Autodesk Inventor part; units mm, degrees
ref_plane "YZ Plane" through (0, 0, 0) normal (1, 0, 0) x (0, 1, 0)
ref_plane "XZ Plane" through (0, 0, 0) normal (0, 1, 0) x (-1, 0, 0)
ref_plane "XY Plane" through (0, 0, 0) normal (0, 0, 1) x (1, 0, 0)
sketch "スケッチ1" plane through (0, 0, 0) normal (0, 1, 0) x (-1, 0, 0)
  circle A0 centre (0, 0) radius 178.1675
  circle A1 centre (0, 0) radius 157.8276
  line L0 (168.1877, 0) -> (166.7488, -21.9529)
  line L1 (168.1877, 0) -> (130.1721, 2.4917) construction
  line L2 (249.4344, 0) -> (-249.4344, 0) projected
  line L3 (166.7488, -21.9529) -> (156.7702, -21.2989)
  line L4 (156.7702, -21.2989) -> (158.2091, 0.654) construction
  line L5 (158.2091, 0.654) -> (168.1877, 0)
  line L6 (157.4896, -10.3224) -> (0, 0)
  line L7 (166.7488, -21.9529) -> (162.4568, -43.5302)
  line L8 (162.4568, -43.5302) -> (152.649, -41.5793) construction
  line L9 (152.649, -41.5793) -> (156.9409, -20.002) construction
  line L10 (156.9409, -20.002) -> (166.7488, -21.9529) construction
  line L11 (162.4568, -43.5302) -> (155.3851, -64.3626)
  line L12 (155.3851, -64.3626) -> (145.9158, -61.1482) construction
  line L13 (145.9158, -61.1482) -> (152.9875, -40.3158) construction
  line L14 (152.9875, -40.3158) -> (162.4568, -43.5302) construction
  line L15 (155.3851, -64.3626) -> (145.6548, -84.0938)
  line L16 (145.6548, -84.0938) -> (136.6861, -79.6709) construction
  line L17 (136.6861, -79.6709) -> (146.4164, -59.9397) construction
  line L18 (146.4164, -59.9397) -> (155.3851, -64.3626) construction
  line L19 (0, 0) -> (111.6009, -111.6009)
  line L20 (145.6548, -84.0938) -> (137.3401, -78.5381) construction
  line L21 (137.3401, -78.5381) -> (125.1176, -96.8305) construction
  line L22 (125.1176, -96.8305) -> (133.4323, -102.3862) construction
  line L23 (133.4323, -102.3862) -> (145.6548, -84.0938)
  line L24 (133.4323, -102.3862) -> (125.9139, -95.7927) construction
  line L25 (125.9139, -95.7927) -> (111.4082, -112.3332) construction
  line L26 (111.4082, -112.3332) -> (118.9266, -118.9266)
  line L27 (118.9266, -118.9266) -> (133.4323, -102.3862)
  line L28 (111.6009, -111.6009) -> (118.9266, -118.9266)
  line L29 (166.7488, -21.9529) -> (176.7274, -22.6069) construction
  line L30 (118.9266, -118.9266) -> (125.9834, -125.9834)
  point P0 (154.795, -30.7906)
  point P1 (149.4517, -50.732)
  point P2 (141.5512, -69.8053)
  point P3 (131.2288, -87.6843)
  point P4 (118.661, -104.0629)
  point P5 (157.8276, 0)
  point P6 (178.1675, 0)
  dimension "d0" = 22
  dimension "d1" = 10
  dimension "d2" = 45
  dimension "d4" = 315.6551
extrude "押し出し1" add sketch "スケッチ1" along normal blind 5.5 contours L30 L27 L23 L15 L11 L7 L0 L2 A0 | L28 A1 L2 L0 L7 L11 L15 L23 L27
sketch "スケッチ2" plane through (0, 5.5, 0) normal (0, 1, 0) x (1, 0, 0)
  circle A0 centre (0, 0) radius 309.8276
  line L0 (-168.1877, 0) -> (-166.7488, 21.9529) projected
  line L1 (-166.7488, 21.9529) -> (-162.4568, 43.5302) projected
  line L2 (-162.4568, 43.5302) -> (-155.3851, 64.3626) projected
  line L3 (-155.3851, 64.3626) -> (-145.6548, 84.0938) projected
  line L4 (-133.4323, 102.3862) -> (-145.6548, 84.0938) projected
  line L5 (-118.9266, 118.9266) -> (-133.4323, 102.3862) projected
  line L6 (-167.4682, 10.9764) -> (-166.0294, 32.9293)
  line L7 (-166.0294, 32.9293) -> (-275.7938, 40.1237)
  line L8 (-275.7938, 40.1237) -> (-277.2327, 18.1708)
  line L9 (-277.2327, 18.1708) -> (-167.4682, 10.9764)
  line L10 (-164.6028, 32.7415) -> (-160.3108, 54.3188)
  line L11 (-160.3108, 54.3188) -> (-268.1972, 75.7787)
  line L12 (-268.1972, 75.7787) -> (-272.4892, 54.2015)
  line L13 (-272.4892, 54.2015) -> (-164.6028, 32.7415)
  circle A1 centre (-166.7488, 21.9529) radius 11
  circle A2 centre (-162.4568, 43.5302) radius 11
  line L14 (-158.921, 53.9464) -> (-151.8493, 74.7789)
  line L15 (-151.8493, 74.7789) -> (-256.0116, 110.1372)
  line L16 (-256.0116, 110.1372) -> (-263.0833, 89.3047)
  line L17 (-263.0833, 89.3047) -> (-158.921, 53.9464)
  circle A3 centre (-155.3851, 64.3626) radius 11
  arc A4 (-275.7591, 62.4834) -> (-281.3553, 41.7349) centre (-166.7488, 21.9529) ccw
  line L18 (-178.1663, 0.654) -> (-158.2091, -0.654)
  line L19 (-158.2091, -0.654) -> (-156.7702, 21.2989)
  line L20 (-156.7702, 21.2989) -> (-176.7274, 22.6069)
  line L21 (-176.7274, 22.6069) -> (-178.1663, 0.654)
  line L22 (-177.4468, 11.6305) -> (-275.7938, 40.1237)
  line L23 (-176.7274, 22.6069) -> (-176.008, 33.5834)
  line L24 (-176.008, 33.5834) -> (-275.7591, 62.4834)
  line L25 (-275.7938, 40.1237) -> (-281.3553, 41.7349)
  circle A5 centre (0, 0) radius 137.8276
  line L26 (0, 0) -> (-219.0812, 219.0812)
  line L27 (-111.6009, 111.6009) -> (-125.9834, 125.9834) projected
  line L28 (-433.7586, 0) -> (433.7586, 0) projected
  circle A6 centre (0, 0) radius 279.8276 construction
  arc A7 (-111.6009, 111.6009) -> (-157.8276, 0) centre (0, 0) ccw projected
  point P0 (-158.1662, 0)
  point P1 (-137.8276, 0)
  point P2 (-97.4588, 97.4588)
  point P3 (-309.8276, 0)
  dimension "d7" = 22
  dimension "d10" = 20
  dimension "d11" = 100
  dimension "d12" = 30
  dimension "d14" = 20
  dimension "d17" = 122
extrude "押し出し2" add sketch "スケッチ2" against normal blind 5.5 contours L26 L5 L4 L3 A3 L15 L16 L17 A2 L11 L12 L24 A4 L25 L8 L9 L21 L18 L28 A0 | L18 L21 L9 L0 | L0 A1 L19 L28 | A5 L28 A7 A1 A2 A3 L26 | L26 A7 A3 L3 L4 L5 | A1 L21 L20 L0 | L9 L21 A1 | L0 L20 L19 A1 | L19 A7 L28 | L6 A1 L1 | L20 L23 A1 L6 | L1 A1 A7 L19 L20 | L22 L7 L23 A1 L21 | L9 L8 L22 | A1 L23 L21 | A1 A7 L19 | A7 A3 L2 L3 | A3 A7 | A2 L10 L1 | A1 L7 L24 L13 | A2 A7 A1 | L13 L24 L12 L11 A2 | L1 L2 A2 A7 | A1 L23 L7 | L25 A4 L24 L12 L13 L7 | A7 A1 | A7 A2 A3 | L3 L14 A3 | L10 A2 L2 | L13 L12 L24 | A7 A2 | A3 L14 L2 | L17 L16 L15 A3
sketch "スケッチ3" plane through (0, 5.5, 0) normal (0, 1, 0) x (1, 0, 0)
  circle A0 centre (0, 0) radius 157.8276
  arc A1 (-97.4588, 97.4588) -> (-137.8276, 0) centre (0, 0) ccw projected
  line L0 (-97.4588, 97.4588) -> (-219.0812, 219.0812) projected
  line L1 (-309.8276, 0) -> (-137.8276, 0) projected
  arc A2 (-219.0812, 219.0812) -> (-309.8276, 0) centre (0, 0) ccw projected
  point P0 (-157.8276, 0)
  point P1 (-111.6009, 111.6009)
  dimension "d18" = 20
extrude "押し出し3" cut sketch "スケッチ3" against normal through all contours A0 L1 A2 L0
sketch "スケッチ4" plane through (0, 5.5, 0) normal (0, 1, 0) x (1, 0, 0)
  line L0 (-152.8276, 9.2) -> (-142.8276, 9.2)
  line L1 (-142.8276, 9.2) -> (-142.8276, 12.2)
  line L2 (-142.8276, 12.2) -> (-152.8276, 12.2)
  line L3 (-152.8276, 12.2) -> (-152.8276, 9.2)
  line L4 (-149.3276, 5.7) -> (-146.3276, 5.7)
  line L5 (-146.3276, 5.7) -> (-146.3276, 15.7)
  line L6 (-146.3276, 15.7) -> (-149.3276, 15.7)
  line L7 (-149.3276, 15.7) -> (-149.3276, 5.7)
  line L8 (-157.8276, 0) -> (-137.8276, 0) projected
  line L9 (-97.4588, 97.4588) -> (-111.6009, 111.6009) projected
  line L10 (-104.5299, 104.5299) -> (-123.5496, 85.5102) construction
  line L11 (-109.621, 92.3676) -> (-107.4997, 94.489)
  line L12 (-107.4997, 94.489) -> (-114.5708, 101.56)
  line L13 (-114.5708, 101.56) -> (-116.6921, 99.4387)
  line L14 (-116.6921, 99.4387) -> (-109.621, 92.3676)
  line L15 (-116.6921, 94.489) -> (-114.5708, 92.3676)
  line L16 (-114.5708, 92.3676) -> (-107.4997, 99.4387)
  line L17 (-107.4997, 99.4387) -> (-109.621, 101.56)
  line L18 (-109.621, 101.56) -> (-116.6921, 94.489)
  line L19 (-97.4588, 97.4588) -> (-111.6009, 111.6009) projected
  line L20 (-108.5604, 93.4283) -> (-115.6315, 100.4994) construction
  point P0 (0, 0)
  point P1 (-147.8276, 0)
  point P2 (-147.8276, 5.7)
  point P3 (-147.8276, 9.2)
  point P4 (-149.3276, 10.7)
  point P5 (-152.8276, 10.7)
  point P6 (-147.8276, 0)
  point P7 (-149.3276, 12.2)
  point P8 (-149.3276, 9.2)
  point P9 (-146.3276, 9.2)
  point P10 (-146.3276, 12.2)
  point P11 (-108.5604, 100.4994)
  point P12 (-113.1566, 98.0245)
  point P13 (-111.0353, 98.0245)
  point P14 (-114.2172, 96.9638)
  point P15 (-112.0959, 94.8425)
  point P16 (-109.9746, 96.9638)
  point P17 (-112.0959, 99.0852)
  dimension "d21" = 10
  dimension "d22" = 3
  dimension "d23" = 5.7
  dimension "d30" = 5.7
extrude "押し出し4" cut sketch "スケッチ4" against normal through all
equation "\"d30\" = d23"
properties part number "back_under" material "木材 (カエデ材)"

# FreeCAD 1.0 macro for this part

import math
import FreeCAD as App
import Part
import Sketcher
Q = App.Units.Quantity


def add_polygon(sketch, points):
    """Adds a closed chain of lines whose ends are joined by coincident constraints."""
    first, n = sketch.GeometryCount, len(points)
    for a, b in zip(points, points[1:] + points[:1]):
        sketch.addGeometry(Part.LineSegment(App.Vector(*a, 0), App.Vector(*b, 0)), False)
    for i in range(n):
        sketch.addConstraint(Sketcher.Constraint("Coincident", first + i, 2, first + (i + 1) % n, 1))

doc = App.newDocument("Part")
body = doc.addObject("PartDesign::Body", "Body")

# Sketch on XZ plane
sketch1 = body.newObject("Sketcher::SketchObject", "Sketch")
sketch1.AttachmentSupport = (doc.getObject("XZ_Plane"), [""])
sketch1.MapMode = "FlatFace"
sketch1.addGeometry([
    Part.ArcOfCircle(Part.Circle(App.Vector(0, 0, 0), App.Vector(0, 0, 1), 178.1675), math.radians(180), math.radians(225)),
    Part.LineSegment(App.Vector(-178.1675, 0, 0), App.Vector(-157.8276, 0, 0)),
    Part.ArcOfCircle(Part.Circle(App.Vector(0, 0, 0), App.Vector(0, 0, 1), 157.8276), math.radians(180), math.radians(225)),
    Part.LineSegment(App.Vector(-111.6009, -111.6009, 0), App.Vector(-125.9834, -125.9834, 0)),
], False)
sketch1.addConstraint([
    Sketcher.Constraint("Coincident", 0, 1, 1, 1),
    Sketcher.Constraint("Coincident", 1, 2, 2, 1),
    Sketcher.Constraint("Coincident", 2, 2, 3, 1),
    Sketcher.Constraint("Coincident", 3, 2, 0, 2),
    Sketcher.Constraint("Horizontal", 1),
    Sketcher.Constraint("Coincident", 0, 3, -1, 1),
    Sketcher.Constraint("Coincident", 2, 3, -1, 1),
    Sketcher.Constraint("PointOnObject", 0, 1, -1),
    Sketcher.Constraint("Radius", 2, Q("157.8276 mm")),
    Sketcher.Constraint("Angle", 3, Q("-135 deg")),
    Sketcher.Constraint("DistanceX", 1, 1, 1, 2, Q("20.34 mm")),
    Sketcher.Constraint("DistanceX", 2, 2, -1, 1, Q("111.601 mm")),
])
pad1 = body.newObject("PartDesign::Pad", "Pad")
pad1.Profile = sketch1
pad1.Length = 5.5
pad1.Reversed = True

# Sketch on XZ plane
sketch2 = body.newObject("Sketcher::SketchObject", "Sketch001")
sketch2.AttachmentSupport = (doc.getObject("XZ_Plane"), [""])
sketch2.MapMode = "FlatFace"
sketch2.AttachmentOffset = App.Placement(App.Vector(0, 0, -5.5), App.Rotation())
sketch2.addGeometry([
    Part.ArcOfCircle(Part.Circle(App.Vector(0, 0, 0), App.Vector(0, 0, 1), 309.8276), math.radians(180), math.radians(225)),
    Part.LineSegment(App.Vector(-309.8276, 0, 0), App.Vector(-137.8276, 0, 0)),
    Part.ArcOfCircle(Part.Circle(App.Vector(0, 0, 0), App.Vector(0, 0, 1), 137.8276), math.radians(180), math.radians(225)),
    Part.LineSegment(App.Vector(-97.458831, -97.458831, 0), App.Vector(-219.0812, -219.0812, 0)),
], False)
sketch2.addConstraint([
    Sketcher.Constraint("Coincident", 0, 1, 1, 1),
    Sketcher.Constraint("Coincident", 1, 2, 2, 1),
    Sketcher.Constraint("Coincident", 2, 2, 3, 1),
    Sketcher.Constraint("Coincident", 3, 2, 0, 2),
    Sketcher.Constraint("Horizontal", 1),
    Sketcher.Constraint("Coincident", 0, 3, -1, 1),
    Sketcher.Constraint("Coincident", 2, 3, -1, 1),
    Sketcher.Constraint("PointOnObject", 0, 1, -1),
    Sketcher.Constraint("DistanceX", 1, 1, 1, 2, Q("172 mm")),
    Sketcher.Constraint("Angle", 3, Q("-135 deg")),
    Sketcher.Constraint("Radius", 0, Q("309.8276 mm")),
    Sketcher.Constraint("DistanceX", 2, 2, -1, 1, Q("97.4588 mm")),
])
pad2 = body.newObject("PartDesign::Pad", "Pad001")
pad2.Profile = sketch2
pad2.Length = 5.5

# Sketch on XZ plane
sketch3 = body.newObject("Sketcher::SketchObject", "Sketch002")
sketch3.AttachmentSupport = (doc.getObject("XZ_Plane"), [""])
sketch3.MapMode = "FlatFace"
sketch3.AttachmentOffset = App.Placement(App.Vector(0, 0, -5.5), App.Rotation())
sketch3.addGeometry([
    Part.ArcOfCircle(Part.Circle(App.Vector(0, 0, 0), App.Vector(0, 0, 1), 157.8276), math.radians(180), math.radians(225)),
    Part.LineSegment(App.Vector(-111.600966, -111.600966, 0), App.Vector(-219.0812, -219.0812, 0)),
    Part.ArcOfCircle(Part.Circle(App.Vector(0, 0, 0), App.Vector(0, 0, 1), 309.827604), math.radians(180), math.radians(225)),
    Part.LineSegment(App.Vector(-309.8276, 0, 0), App.Vector(-157.8276, 0, 0)),
], False)
sketch3.addConstraint([
    Sketcher.Constraint("Coincident", 0, 2, 1, 1),
    Sketcher.Constraint("Coincident", 1, 2, 2, 2),
    Sketcher.Constraint("Coincident", 2, 1, 3, 1),
    Sketcher.Constraint("Coincident", 3, 2, 0, 1),
    Sketcher.Constraint("Horizontal", 3),
    Sketcher.Constraint("Coincident", 0, 3, -1, 1),
    Sketcher.Constraint("Coincident", 2, 3, -1, 1),
    Sketcher.Constraint("PointOnObject", 2, 1, -1),
    Sketcher.Constraint("DistanceX", 3, 1, 3, 2, Q("152 mm")),
    Sketcher.Constraint("Angle", 1, Q("-135 deg")),
    Sketcher.Constraint("Radius", 0, Q("157.8276 mm")),
    Sketcher.Constraint("DistanceX", 0, 2, -1, 1, Q("111.601 mm")),
])
pocket1 = body.newObject("PartDesign::Pocket", "Pocket")
pocket1.Profile = sketch3
pocket1.Type = "ThroughAll"
pocket1.Reversed = True

# Sketch on XZ plane
sketch4 = body.newObject("Sketcher::SketchObject", "Sketch003")
sketch4.AttachmentSupport = (doc.getObject("XZ_Plane"), [""])
sketch4.MapMode = "FlatFace"
sketch4.AttachmentOffset = App.Placement(App.Vector(0, 0, -5.5), App.Rotation())
add_polygon(sketch4, [(-152.8276, -12.2), (-152.8276, -9.2), (-149.3276, -9.2), (-149.3276, -5.7), (-146.3276, -5.7), (-146.3276, -9.2), (-142.8276, -9.2), (-142.8276, -12.2), (-146.3276, -12.2), (-146.3276, -15.7), (-149.3276, -15.7), (-149.3276, -12.2)])  # lines 0-11
add_polygon(sketch4, [(-112.0959, -94.8425), (-109.621, -92.3676), (-107.4997, -94.489), (-109.974568, -96.963832), (-107.4997, -99.4387), (-109.621, -101.56), (-112.0959, -99.085135), (-114.5708, -101.56), (-116.6921, -99.4387), (-114.217232, -96.963832), (-116.6921, -94.489), (-114.5708, -92.3676)])  # lines 12-23
sketch4.addConstraint([
    Sketcher.Constraint("Vertical", 0),
    Sketcher.Constraint("Horizontal", 1),
    Sketcher.Constraint("Vertical", 2),
    Sketcher.Constraint("Horizontal", 3),
    Sketcher.Constraint("Vertical", 4),
    Sketcher.Constraint("Horizontal", 5),
    Sketcher.Constraint("Vertical", 6),
    Sketcher.Constraint("Horizontal", 7),
    Sketcher.Constraint("Vertical", 8),
    Sketcher.Constraint("Horizontal", 9),
    Sketcher.Constraint("Vertical", 10),
    Sketcher.Constraint("Horizontal", 11),
    Sketcher.Constraint("Perpendicular", 12, 13),
    Sketcher.Constraint("Perpendicular", 13, 14),
    Sketcher.Constraint("Perpendicular", 14, 15),
    Sketcher.Constraint("Perpendicular", 15, 16),
    Sketcher.Constraint("Perpendicular", 16, 17),
    Sketcher.Constraint("Perpendicular", 17, 18),
    Sketcher.Constraint("Perpendicular", 18, 19),
    Sketcher.Constraint("Perpendicular", 19, 20),
    Sketcher.Constraint("Perpendicular", 20, 21),
    Sketcher.Constraint("Perpendicular", 21, 22),
    Sketcher.Constraint("Perpendicular", 22, 23),
    Sketcher.Constraint("Horizontal", 1, 2, 4, 2),
    Sketcher.Constraint("Horizontal", 7, 2, 10, 2),
    Sketcher.Constraint("Horizontal", 16, 2, 18, 2),
    Sketcher.Constraint("Horizontal", 15, 2, 19, 2),
    Sketcher.Constraint("Horizontal", 14, 2, 20, 2),
    Sketcher.Constraint("Horizontal", 13, 2, 21, 2),
    Sketcher.Constraint("Horizontal", 12, 2, 22, 2),
    Sketcher.Constraint("Vertical", 4, 2, 7, 2),
    Sketcher.Constraint("Vertical", 2, 2, 9, 2),
    Sketcher.Constraint("Vertical", 13, 2, 15, 2),
    Sketcher.Constraint("Vertical", 12, 2, 16, 2),
    Sketcher.Constraint("Vertical", 19, 2, 21, 2),
    Sketcher.Constraint("Equal", 1, 5),
    Sketcher.Constraint("Equal", 9, 0),
    Sketcher.Constraint("Equal", 11, 2),
    Sketcher.Constraint("Equal", 4, 8),
    Sketcher.Constraint("Equal", 12, 14),
    Sketcher.Constraint("DistanceX", 3, 1, 3, 2, Q("3 mm")),
    Sketcher.Constraint("Distance", 13, Q("3 mm")),
    Sketcher.Constraint("DistanceX", 0, 2, 5, 2, Q("10 mm")),
    Sketcher.Constraint("DistanceY", 2, 2, -1, 1, Q("5.7 mm")),
    Sketcher.Constraint("Distance", 12, Q("3.5 mm")),
    Sketcher.Constraint("DistanceY", 16, 2, -1, 1, Q("101.56 mm")),
    Sketcher.Constraint("DistanceX", 12, 2, -1, 1, Q("109.621 mm")),
    Sketcher.Constraint("DistanceX", 8, 2, 13, 2, Q("38.828 mm")),
])
pocket2 = body.newObject("PartDesign::Pocket", "Pocket001")
pocket2.Profile = sketch4
pocket2.Type = "ThroughAll"
pocket2.Reversed = True

doc.recompute()
